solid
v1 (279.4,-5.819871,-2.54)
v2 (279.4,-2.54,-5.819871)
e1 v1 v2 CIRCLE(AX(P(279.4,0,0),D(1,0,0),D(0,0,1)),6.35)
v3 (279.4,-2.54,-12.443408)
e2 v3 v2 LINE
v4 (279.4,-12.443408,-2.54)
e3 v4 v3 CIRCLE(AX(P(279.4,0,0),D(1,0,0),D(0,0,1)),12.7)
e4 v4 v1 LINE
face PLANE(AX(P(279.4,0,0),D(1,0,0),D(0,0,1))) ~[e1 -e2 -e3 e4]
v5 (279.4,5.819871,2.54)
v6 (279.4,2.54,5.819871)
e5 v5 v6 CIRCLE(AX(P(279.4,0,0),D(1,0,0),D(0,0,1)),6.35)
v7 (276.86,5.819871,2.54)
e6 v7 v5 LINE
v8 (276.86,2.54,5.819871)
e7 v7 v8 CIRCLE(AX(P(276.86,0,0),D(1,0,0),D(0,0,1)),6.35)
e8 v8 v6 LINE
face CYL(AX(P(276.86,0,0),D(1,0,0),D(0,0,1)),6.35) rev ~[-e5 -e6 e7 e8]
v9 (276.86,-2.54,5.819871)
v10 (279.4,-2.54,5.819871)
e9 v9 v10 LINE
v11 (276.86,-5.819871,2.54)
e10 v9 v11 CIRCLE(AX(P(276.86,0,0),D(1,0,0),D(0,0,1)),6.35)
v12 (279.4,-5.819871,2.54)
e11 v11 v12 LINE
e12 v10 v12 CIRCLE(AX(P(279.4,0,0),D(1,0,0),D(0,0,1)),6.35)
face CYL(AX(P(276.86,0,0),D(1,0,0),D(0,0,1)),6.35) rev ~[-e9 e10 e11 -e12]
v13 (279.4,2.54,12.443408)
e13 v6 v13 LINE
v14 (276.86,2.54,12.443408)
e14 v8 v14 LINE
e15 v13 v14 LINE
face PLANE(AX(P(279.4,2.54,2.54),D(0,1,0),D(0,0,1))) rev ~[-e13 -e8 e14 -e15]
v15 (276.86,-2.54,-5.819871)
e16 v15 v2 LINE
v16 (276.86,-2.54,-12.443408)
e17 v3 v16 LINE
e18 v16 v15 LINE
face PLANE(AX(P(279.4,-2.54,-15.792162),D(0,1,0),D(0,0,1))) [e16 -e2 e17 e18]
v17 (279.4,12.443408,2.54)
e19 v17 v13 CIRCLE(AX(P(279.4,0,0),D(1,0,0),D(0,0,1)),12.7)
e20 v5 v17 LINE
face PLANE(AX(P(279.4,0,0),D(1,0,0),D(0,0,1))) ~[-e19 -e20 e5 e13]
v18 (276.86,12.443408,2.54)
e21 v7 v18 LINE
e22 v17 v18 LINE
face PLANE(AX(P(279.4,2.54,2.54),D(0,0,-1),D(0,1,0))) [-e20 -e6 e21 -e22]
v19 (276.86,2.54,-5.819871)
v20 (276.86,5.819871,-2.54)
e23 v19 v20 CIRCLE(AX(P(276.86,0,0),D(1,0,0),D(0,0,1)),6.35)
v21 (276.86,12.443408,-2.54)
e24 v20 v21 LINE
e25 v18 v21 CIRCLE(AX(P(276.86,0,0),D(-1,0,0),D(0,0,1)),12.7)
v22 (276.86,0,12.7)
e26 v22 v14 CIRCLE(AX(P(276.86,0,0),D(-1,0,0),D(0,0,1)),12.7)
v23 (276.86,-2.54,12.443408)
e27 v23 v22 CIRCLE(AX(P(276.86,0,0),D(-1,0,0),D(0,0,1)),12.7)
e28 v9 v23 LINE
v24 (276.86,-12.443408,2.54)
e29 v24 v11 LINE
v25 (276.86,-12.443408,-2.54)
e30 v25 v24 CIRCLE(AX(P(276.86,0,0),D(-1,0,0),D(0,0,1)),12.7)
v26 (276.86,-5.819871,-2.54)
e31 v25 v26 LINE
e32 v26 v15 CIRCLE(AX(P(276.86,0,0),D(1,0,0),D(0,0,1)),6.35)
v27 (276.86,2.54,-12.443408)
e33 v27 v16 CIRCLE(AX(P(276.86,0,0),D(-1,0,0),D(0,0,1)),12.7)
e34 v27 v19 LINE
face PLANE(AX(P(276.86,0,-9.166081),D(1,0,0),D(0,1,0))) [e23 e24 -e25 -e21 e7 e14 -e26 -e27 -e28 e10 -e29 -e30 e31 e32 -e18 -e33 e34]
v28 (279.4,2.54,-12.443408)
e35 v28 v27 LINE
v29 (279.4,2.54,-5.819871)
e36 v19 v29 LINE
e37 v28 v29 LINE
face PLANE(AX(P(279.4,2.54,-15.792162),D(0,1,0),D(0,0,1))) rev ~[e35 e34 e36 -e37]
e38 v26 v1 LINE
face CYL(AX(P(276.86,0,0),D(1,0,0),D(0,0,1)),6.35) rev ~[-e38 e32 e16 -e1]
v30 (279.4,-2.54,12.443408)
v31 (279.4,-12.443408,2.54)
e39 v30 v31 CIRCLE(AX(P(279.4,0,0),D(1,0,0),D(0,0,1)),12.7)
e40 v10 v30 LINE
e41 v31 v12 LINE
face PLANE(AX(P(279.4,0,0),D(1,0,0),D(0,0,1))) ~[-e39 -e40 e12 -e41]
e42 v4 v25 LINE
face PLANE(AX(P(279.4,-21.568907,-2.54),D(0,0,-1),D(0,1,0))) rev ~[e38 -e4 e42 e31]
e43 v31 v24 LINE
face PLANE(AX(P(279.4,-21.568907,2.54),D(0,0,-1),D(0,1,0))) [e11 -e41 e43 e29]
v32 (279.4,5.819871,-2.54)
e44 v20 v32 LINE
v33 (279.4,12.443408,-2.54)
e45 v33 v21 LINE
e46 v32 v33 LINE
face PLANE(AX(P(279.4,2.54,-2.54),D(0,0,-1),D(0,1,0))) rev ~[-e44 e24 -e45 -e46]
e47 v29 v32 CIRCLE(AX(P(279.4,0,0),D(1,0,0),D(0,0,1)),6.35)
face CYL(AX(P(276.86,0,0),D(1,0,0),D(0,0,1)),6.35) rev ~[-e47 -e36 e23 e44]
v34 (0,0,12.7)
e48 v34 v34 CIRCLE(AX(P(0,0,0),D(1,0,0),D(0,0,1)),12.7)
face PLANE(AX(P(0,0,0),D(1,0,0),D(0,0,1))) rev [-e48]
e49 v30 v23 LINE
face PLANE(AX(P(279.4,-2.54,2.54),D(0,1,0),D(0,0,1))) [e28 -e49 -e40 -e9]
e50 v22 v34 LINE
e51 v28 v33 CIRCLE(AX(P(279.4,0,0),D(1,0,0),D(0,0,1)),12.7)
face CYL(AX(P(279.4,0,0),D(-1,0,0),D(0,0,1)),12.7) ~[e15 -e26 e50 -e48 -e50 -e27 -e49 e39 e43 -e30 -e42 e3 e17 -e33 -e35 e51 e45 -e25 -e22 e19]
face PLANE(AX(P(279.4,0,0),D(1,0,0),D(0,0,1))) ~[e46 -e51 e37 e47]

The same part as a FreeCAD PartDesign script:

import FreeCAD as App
import Part
import Sketcher
Q = App.Units.Quantity


def add_polygon(sketch, points):
    """Adds a closed chain of lines whose ends are joined by coincident constraints."""
    first, n = sketch.GeometryCount, len(points)
    for a, b in zip(points, points[1:] + points[:1]):
        sketch.addGeometry(Part.LineSegment(App.Vector(*a, 0), App.Vector(*b, 0)), False)
    for i in range(n):
        sketch.addConstraint(Sketcher.Constraint("Coincident", first + i, 2, first + (i + 1) % n, 1))

doc = App.newDocument("Part")
body = doc.addObject("PartDesign::Body", "Body")

sketch1 = body.newObject("Sketcher::SketchObject", "Sketch")
sketch1.AttachmentSupport = (doc.getObject("XZ_Plane"), [""])
sketch1.MapMode = "FlatFace"
add_polygon(sketch1, [(0, 12.7), (0, 0), (276.86, 0), (276.86, 6.35), (279.4, 6.35), (279.4, 12.7)])
sketch1.addConstraint([
    Sketcher.Constraint("Vertical", 0),
    Sketcher.Constraint("Horizontal", 1),
    Sketcher.Constraint("Vertical", 2),
    Sketcher.Constraint("Horizontal", 3),
    Sketcher.Constraint("Vertical", 4),
    Sketcher.Constraint("Horizontal", 5),
    Sketcher.Constraint("Coincident", 0, 2, -1, 1),
    Sketcher.Constraint("Equal", 2, 4),
    Sketcher.Constraint("DistanceX", 5, 2, 5, 1, Q("11 in")),
    Sketcher.Constraint("DistanceX", 1, 1, 1, 2, Q("10.9 in")),
    Sketcher.Constraint("DistanceY", 0, 2, 0, 1, Q("0.5 in")),
])
revolution = body.newObject("PartDesign::Revolution", "Revolution")
revolution.Profile = sketch1
revolution.ReferenceAxis = (sketch1, ["H_Axis"])
revolution.Angle = 360

sketch2 = body.newObject("Sketcher::SketchObject", "Sketch001")
sketch2.AttachmentSupport = (doc.getObject("YZ_Plane"), [""])
sketch2.MapMode = "FlatFace"
sketch2.AttachmentOffset = App.Placement(App.Vector(0, 0, 11 * 25.4), App.Rotation())
add_polygon(sketch2, [(-2.54, -2.54), (-2.54, -15.792162), (2.54, -15.792162), (2.54, -2.54), (21.568907, -2.54), (21.568907, 2.54), (2.54, 2.54), (2.54, 15.792162), (-2.54, 15.792162), (-2.54, 2.54), (-21.568907, 2.54), (-21.568907, -2.54)])
add_polygon(sketch2, [(-2.539999, -2.539999), (-2.539999, 2.539999), (2.539999, 2.539999), (2.539999, -2.539999)])
sketch2.addConstraint([
    Sketcher.Constraint("Vertical", 0),
    Sketcher.Constraint("Horizontal", 1),
    Sketcher.Constraint("Vertical", 2),
    Sketcher.Constraint("Horizontal", 3),
    Sketcher.Constraint("Vertical", 4),
    Sketcher.Constraint("Horizontal", 5),
    Sketcher.Constraint("Vertical", 6),
    Sketcher.Constraint("Horizontal", 7),
    Sketcher.Constraint("Vertical", 8),
    Sketcher.Constraint("Horizontal", 9),
    Sketcher.Constraint("Vertical", 10),
    Sketcher.Constraint("Horizontal", 11),
    Sketcher.Constraint("Vertical", 12),
    Sketcher.Constraint("Horizontal", 13),
    Sketcher.Constraint("Vertical", 14),
    Sketcher.Constraint("Horizontal", 15),
    Sketcher.Constraint("Coincident", 12, 2, 8, 2),
    Sketcher.Constraint("Coincident", 13, 2, 5, 2),
    Sketcher.Constraint("Coincident", 14, 2, 2, 2),
    Sketcher.Constraint("Coincident", 15, 2, 11, 2),
    Sketcher.Constraint("Symmetric", 0, 2, 6, 2, -1, 1),
    Sketcher.Constraint("Symmetric", 3, 2, 9, 2, -1, 1),
    Sketcher.Constraint("Equal", 15, 4),
    Sketcher.Constraint("DistanceX", 1, 1, 1, 2, Q("0.2 in")),
    Sketcher.Constraint("DistanceX", 3, 1, 3, 2, Q("19.028907 mm")),
    Sketcher.Constraint("DistanceY", 0, 2, 0, 1, Q("13.252163 mm")),
])
pocket1 = body.newObject("PartDesign::Pocket", "Pocket")
pocket1.Profile = sketch2
pocket1.Length = Q("0.1 in")

sketch3 = body.newObject("Sketcher::SketchObject", "Sketch002")
sketch3.AttachmentSupport = (doc.getObject("YZ_Plane"), [""])
sketch3.MapMode = "FlatFace"
sketch3.AttachmentOffset = App.Placement(App.Vector(0, 0, 11 * 25.4), App.Rotation())
add_polygon(sketch3, [(-2.54, -2.54), (-2.54, -15.792162), (2.54, -15.792162), (2.54, -2.54), (21.568907, -2.54), (21.568907, 2.54), (2.54, 2.54), (2.54, 15.792162), (-2.54, 15.792162), (-2.54, 2.54), (-21.568907, 2.54), (-21.568907, -2.54)])
add_polygon(sketch3, [(-2.539999, -2.539999), (-2.539999, 2.539999), (2.539999, 2.539999), (2.539999, -2.539999)])
sketch3.addConstraint([
    Sketcher.Constraint("Vertical", 0),
    Sketcher.Constraint("Horizontal", 1),
    Sketcher.Constraint("Vertical", 2),
    Sketcher.Constraint("Horizontal", 3),
    Sketcher.Constraint("Vertical", 4),
    Sketcher.Constraint("Horizontal", 5),
    Sketcher.Constraint("Vertical", 6),
    Sketcher.Constraint("Horizontal", 7),
    Sketcher.Constraint("Vertical", 8),
    Sketcher.Constraint("Horizontal", 9),
    Sketcher.Constraint("Vertical", 10),
    Sketcher.Constraint("Horizontal", 11),
    Sketcher.Constraint("Vertical", 12),
    Sketcher.Constraint("Horizontal", 13),
    Sketcher.Constraint("Vertical", 14),
    Sketcher.Constraint("Horizontal", 15),
    Sketcher.Constraint("Coincident", 12, 2, 8, 2),
    Sketcher.Constraint("Coincident", 13, 2, 5, 2),
    Sketcher.Constraint("Coincident", 14, 2, 2, 2),
    Sketcher.Constraint("Coincident", 15, 2, 11, 2),
    Sketcher.Constraint("Symmetric", 0, 2, 6, 2, -1, 1),
    Sketcher.Constraint("Symmetric", 3, 2, 9, 2, -1, 1),
    Sketcher.Constraint("Equal", 15, 4),
    Sketcher.Constraint("DistanceX", 1, 1, 1, 2, Q("0.2 in")),
    Sketcher.Constraint("DistanceX", 3, 1, 3, 2, Q("19.028907 mm")),
    Sketcher.Constraint("DistanceY", 0, 2, 0, 1, Q("13.252163 mm")),
])
pocket2 = body.newObject("PartDesign::Pocket", "Pocket001")
pocket2.Profile = sketch3
pocket2.Length = Q("0.1 in")

doc.recompute()
